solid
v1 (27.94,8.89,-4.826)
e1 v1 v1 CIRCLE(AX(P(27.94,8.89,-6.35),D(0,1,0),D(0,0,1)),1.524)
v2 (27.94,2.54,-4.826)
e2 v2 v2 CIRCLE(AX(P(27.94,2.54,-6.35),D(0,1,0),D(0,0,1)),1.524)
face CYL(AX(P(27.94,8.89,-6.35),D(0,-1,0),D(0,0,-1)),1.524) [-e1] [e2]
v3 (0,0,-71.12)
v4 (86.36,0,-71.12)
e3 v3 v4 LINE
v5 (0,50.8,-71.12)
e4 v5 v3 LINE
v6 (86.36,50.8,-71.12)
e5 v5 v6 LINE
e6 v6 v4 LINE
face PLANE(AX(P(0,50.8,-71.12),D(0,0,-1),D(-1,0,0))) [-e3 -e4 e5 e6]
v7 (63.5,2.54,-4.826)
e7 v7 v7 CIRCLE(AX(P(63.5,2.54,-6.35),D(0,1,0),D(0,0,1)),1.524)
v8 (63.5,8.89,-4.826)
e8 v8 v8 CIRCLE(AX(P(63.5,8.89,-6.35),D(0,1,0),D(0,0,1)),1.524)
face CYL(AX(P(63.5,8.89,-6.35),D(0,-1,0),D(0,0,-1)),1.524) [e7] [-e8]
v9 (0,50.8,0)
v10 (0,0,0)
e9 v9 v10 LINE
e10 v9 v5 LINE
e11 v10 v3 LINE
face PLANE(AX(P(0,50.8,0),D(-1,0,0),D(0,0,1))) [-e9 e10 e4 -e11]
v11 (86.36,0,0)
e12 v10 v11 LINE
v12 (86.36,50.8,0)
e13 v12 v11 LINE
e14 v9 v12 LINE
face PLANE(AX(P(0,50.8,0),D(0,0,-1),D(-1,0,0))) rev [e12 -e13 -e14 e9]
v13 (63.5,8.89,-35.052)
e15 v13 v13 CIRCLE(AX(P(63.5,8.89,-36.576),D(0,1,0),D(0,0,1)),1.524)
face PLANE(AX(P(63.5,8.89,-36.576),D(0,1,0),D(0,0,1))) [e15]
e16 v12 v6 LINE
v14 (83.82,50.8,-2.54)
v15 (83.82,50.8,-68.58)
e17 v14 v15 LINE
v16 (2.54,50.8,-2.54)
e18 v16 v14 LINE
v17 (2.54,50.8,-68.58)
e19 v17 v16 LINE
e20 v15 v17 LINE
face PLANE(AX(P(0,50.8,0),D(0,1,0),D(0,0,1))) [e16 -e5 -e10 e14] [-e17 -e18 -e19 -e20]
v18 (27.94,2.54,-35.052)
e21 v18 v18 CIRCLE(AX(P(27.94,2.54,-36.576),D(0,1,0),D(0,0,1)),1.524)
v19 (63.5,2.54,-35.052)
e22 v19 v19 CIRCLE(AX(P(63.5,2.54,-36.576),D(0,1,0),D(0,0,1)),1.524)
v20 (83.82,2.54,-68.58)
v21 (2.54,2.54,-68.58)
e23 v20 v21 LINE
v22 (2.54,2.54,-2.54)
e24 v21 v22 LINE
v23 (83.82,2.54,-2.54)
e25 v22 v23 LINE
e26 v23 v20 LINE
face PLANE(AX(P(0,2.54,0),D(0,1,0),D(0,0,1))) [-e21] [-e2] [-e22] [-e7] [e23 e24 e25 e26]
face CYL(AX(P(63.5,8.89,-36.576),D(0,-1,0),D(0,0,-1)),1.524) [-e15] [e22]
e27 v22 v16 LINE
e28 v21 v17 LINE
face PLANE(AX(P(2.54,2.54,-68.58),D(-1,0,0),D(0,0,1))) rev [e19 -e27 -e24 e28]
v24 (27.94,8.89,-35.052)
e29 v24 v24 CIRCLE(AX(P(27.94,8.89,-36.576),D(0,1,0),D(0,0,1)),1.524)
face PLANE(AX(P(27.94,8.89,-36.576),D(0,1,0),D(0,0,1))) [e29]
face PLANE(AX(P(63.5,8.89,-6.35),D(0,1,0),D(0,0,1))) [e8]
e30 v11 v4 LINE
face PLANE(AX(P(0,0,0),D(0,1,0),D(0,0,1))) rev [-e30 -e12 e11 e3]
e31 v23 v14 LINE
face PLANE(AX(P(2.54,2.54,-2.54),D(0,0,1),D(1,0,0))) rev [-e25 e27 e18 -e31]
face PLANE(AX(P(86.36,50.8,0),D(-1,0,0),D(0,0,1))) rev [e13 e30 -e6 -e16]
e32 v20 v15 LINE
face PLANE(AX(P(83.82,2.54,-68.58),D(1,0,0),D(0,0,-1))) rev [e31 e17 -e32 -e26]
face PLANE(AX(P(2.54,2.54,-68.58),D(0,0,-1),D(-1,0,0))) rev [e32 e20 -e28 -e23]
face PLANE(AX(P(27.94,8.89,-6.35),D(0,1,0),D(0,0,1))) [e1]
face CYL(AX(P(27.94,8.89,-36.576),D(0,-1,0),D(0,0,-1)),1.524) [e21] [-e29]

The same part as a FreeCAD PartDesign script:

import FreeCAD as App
import Part
import Sketcher
from FreeCAD import Vector
Q = App.Units.Quantity


def add_polygon(sketch, points):
    """Adds a closed chain of lines whose ends are joined by coincident constraints."""
    first, n = sketch.GeometryCount, len(points)
    for a, b in zip(points, points[1:] + points[:1]):
        sketch.addGeometry(Part.LineSegment(App.Vector(*a, 0), App.Vector(*b, 0)), False)
    for i in range(n):
        sketch.addConstraint(Sketcher.Constraint("Coincident", first + i, 2, first + (i + 1) % n, 1))

doc = App.newDocument("Part")
body = doc.addObject("PartDesign::Body", "Body")

sketch1 = doc.addObject("Sketcher::SketchObject", "Sketch")
body.addObject(sketch1)
sketch1.AttachmentSupport = (doc.XZ_Plane, [""])
sketch1.MapMode = "FlatFace"
add_polygon(sketch1, [(0, -71), (0, 0), (86, 0), (86, -71)])
sketch1.addConstraint([
    Sketcher.Constraint("Vertical", 0),
    Sketcher.Constraint("Horizontal", 1),
    Sketcher.Constraint("Vertical", 2),
    Sketcher.Constraint("Horizontal", 3),
    Sketcher.Constraint("Coincident", 0, 2, -1, 1),
    Sketcher.Constraint("DistanceX", 1, 1, 1, 2, Q("3.4 in")),
    Sketcher.Constraint("DistanceY", 0, 1, 0, 2, Q("2.8 in")),
])
pad1 = doc.addObject("PartDesign::Pad", "Pad")
body.addObject(pad1)
pad1.Profile = sketch1
pad1.Length = Q("2 in")
pad1.Reversed = True

sketch2 = doc.addObject("Sketcher::SketchObject", "Sketch001")
body.addObject(sketch2)
sketch2.AttachmentSupport = (doc.XZ_Plane, [""])
sketch2.MapMode = "FlatFace"
sketch2.AttachmentOffset = App.Placement(Vector(0, 0, -2 * 25.4), App.Rotation())
add_polygon(sketch2, [(3, -69), (3, -3), (84, -3), (84, -69)])
sketch2.addConstraint([
    Sketcher.Constraint("Vertical", 0),
    Sketcher.Constraint("Horizontal", 1),
    Sketcher.Constraint("Vertical", 2),
    Sketcher.Constraint("Horizontal", 3),
    Sketcher.Constraint("DistanceX", 1, 1, 1, 2, Q("3.2 in")),
    Sketcher.Constraint("DistanceY", 0, 1, 0, 2, Q("2.6 in")),
    Sketcher.Constraint("DistanceX", -1, 1, 0, 2, Q("0.1 in")),
    Sketcher.Constraint("DistanceY", 0, 2, -1, 1, Q("0.1 in")),
])
pocket1 = doc.addObject("PartDesign::Pocket", "Pocket")
body.addObject(pocket1)
pocket1.Profile = sketch2
pocket1.Length = Q("1.9 in")
pocket1.Reversed = True

sketch3 = doc.addObject("Sketcher::SketchObject", "Sketch002")
body.addObject(sketch3)
sketch3.AttachmentSupport = (doc.XZ_Plane, [""])
sketch3.MapMode = "FlatFace"
sketch3.AttachmentOffset = App.Placement(Vector(0, 0, -0.1 * 25.4), App.Rotation())
sketch3.addGeometry([
    Part.Circle(Vector(27.9, -36.6, 0), Vector(0, 0, 1), 1.5),
    Part.Circle(Vector(63.5, -36.6, 0), Vector(0, 0, 1), 1.5),
    Part.Circle(Vector(63.5, -6.3, 0), Vector(0, 0, 1), 1.5),
    Part.Circle(Vector(27.9, -6.3, 0), Vector(0, 0, 1), 1.5),
], False)
sketch3.addConstraint([
    Sketcher.Constraint("Equal", 0, 1),
    Sketcher.Constraint("Equal", 1, 2),
    Sketcher.Constraint("Equal", 2, 3),
    Sketcher.Constraint("Horizontal", 0, 3, 1, 3),
    Sketcher.Constraint("Horizontal", 2, 3, 3, 3),
    Sketcher.Constraint("Vertical", 1, 3, 2, 3),
    Sketcher.Constraint("Vertical", 0, 3, 3, 3),
    Sketcher.Constraint("Diameter", 0, Q("0.12 in")),
    Sketcher.Constraint("DistanceX", -1, 1, 0, 3, Q("1.1 in")),
    Sketcher.Constraint("DistanceX", -1, 1, 1, 3, Q("2.5 in")),
    Sketcher.Constraint("DistanceY", 0, 3, -1, 1, Q("1.44 in")),
    Sketcher.Constraint("DistanceY", 2, 3, -1, 1, Q("0.25 in")),
])
pad2 = doc.addObject("PartDesign::Pad", "Pad001")
body.addObject(pad2)
pad2.Profile = sketch3
pad2.Length = Q("0.25 in")
pad2.Reversed = True

doc.recompute()
